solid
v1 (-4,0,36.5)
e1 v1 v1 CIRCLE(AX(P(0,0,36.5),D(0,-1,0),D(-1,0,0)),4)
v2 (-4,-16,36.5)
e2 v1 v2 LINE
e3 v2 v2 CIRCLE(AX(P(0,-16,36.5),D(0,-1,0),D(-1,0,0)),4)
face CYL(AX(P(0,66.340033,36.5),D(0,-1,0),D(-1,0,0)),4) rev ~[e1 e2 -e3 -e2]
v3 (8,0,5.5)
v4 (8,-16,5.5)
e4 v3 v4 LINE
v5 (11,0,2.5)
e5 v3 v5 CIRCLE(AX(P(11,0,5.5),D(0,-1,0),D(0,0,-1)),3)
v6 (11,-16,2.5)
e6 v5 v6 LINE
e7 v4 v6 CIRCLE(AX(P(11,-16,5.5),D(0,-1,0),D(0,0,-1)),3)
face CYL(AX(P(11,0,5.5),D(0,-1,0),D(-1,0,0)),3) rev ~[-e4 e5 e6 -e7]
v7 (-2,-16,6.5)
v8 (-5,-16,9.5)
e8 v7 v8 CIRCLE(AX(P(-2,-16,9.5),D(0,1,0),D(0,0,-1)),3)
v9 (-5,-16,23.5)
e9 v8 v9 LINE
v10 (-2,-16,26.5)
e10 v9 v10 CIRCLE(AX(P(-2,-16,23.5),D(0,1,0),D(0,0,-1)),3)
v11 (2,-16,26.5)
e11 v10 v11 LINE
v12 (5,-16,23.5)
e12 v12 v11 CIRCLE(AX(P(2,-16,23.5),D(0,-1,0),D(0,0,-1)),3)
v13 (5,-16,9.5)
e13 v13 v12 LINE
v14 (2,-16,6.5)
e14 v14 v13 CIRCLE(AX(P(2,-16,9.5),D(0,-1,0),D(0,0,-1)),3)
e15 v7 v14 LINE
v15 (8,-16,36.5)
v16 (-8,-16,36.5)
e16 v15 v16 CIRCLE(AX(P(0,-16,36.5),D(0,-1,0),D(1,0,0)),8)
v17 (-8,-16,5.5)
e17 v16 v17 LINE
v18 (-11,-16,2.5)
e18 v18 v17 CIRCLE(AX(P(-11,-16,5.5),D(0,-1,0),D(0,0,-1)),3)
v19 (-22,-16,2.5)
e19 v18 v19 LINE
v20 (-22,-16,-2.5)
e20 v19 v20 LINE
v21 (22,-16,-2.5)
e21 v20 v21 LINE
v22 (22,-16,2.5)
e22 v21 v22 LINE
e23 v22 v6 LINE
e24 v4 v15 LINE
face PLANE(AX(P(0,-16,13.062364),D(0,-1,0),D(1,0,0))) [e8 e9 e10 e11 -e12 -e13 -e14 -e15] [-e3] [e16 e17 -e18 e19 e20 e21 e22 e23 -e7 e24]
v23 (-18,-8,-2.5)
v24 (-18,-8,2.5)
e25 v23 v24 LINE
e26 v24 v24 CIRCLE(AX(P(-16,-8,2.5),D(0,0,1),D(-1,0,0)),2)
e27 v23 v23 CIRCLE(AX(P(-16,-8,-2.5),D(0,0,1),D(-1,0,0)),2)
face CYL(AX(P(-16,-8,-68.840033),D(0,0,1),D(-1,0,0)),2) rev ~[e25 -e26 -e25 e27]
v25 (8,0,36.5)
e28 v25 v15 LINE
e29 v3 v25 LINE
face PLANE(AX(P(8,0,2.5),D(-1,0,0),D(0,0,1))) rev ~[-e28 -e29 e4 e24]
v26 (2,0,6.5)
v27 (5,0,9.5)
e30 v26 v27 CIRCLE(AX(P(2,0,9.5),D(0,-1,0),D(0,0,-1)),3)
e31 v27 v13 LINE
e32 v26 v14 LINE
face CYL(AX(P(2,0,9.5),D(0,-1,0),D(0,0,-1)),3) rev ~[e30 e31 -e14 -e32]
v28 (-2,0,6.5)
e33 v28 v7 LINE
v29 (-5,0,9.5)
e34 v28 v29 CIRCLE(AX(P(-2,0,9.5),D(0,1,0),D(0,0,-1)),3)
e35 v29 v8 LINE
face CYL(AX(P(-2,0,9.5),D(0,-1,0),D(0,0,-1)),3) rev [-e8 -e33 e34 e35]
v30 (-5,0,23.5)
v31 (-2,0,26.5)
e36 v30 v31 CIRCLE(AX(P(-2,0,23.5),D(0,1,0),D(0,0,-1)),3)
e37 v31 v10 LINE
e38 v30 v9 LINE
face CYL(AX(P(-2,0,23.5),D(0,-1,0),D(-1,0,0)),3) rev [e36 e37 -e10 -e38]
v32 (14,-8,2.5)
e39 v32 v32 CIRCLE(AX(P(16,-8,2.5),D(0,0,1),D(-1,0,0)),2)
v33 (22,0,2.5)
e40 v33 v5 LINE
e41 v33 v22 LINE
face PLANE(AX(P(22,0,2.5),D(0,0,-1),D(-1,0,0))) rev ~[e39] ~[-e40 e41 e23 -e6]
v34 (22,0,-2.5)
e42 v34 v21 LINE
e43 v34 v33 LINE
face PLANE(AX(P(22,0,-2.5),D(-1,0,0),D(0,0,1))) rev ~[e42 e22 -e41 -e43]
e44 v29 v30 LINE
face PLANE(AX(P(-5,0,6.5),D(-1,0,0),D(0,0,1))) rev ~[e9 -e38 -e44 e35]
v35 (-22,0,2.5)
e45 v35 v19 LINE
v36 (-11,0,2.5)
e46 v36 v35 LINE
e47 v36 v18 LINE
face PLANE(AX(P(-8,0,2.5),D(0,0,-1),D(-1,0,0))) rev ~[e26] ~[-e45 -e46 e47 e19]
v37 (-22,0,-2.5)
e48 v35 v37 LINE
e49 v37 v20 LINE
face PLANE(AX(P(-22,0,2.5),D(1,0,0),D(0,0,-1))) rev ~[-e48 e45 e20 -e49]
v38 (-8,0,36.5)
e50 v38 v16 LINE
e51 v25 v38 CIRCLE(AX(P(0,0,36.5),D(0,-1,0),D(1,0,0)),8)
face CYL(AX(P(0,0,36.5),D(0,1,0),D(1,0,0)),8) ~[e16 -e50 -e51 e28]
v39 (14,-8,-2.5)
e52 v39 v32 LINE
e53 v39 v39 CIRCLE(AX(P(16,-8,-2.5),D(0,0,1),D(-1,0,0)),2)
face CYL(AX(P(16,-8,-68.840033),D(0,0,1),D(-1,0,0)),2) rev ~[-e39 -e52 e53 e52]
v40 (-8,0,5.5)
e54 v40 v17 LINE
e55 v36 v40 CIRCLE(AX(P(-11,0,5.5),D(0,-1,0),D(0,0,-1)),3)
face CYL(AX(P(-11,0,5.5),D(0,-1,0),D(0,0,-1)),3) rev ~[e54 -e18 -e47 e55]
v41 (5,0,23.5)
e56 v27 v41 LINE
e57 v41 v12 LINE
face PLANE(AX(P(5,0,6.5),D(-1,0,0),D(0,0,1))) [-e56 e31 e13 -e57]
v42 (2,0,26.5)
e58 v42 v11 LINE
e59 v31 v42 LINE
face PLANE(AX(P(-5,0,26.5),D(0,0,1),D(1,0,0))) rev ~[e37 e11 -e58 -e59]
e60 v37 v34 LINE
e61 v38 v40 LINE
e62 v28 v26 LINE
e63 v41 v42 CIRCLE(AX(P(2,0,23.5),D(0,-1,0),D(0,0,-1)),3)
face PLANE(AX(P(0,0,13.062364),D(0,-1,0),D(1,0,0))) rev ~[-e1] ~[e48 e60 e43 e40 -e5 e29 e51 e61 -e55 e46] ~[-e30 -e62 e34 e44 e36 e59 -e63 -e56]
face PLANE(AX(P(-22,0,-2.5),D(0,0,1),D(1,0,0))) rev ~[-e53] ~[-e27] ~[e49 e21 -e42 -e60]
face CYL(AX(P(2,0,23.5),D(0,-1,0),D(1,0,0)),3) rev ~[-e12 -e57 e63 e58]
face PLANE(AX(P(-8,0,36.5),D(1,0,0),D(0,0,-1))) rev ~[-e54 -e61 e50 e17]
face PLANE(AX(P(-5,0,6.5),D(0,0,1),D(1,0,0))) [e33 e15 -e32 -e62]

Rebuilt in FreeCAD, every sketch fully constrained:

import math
import FreeCAD as App
import Part
import Sketcher

V = App.Vector


def edges_at(feature, points):
    """Names of the edges that pass closest to the given points."""
    edges = feature.Shape.Edges
    near = lambda p: min(range(len(edges)), key=lambda i: edges[i].distToShape(Part.Vertex(*p))[0])
    return sorted({f"Edge{near(p) + 1}" for p in points})


def add_polygon(sketch, points):
    """Adds a closed chain of lines whose ends are joined by coincident constraints."""
    first, n = sketch.GeometryCount, len(points)
    for a, b in zip(points, points[1:] + points[:1]):
        sketch.addGeometry(Part.LineSegment(App.Vector(*a, 0), App.Vector(*b, 0)), False)
    for i in range(n):
        sketch.addConstraint(Sketcher.Constraint("Coincident", first + i, 2, first + (i + 1) % n, 1))

doc = App.newDocument("Part")
body = doc.addObject("PartDesign::Body", "Body")

sketch1 = body.newObject("Sketcher::SketchObject", "Sketch")
sketch1.AttachmentSupport = (doc.getObject("XZ_Plane"), [""])
sketch1.MapMode = "FlatFace"
sketch1.addGeometry(Part.LineSegment(V(-8, 2, 0), V(-22, 2, 0)), False)
sketch1.addGeometry(Part.LineSegment(V(-22, 2, 0), V(-22, -2, 0)), False)
sketch1.addGeometry(Part.LineSegment(V(-22, -2, 0), V(22, -2, 0)), False)
sketch1.addGeometry(Part.LineSegment(V(22, -2, 0), V(22, 2, 0)), False)
sketch1.addGeometry(Part.LineSegment(V(22, 2, 0), V(8, 2, 0)), False)
sketch1.addGeometry(Part.LineSegment(V(8, 2, 0), V(8, 36, 0)), False)
sketch1.addGeometry(Part.ArcOfCircle(Part.Circle(V(0, 36, 0), V(0, 0, 1), 8), math.radians(0), math.radians(180)), False)
sketch1.addGeometry(Part.LineSegment(V(-8, 36, 0), V(-8, 2, 0)), False)
add_polygon(sketch1, [(5, 6), (-5, 6), (-5, 26), (5, 26)])
sketch1.addConstraint([
    Sketcher.Constraint("Coincident", 0, 2, 1, 1),
    Sketcher.Constraint("Coincident", 1, 2, 2, 1),
    Sketcher.Constraint("Coincident", 2, 2, 3, 1),
    Sketcher.Constraint("Coincident", 3, 2, 4, 1),
    Sketcher.Constraint("Coincident", 4, 2, 5, 1),
    Sketcher.Constraint("Tangent", 5, 2, 6, 1),
    Sketcher.Constraint("Tangent", 6, 2, 7, 1),
    Sketcher.Constraint("Coincident", 7, 2, 0, 1),
    Sketcher.Constraint("Horizontal", 0),
    Sketcher.Constraint("Vertical", 1),
    Sketcher.Constraint("Horizontal", 2),
    Sketcher.Constraint("Vertical", 3),
    Sketcher.Constraint("Horizontal", 4),
    Sketcher.Constraint("Vertical", 5),
    Sketcher.Constraint("Vertical", 7),
    Sketcher.Constraint("Horizontal", 8),
    Sketcher.Constraint("Vertical", 9),
    Sketcher.Constraint("Horizontal", 10),
    Sketcher.Constraint("Vertical", 11),
    Sketcher.Constraint("Symmetric", 0, 2, 2, 2, -1, 1),
    Sketcher.Constraint("Symmetric", 4, 2, 7, 2, -2),
    Sketcher.Constraint("Radius", 6, 8.0),
    Sketcher.Constraint("DistanceX", 0, 2, 0, 1, 14.0),
    Sketcher.Constraint("DistanceX", 8, 2, 8, 1, 10.0),
    Sketcher.Constraint("DistanceY", 1, 2, 1, 1, 5.0),
    Sketcher.Constraint("DistanceY", 5, 1, 5, 2, 34.0),
    Sketcher.Constraint("DistanceY", 9, 1, 9, 2, 20.0),
    Sketcher.Constraint("DistanceX", 8, 2, -1, 1, 5.0),
    Sketcher.Constraint("DistanceY", 7, 2, 8, 2, 4.0),
])
pad1 = body.newObject("PartDesign::Pad", "Pad")
pad1.Profile = sketch1
pad1.Length = 16

sketch2 = body.newObject("Sketcher::SketchObject", "Sketch001")
sketch2.AttachmentSupport = (doc.getObject("XZ_Plane"), [""])
sketch2.MapMode = "FlatFace"
sketch2.addGeometry(Part.Circle(V(0, 36.5, 0), V(0, 0, 1), 4), False)
sketch2.addConstraint([
    Sketcher.Constraint("PointOnObject", 0, 3, -2),
    Sketcher.Constraint("Diameter", 0, 8.0),
    Sketcher.Constraint("DistanceY", -1, 1, 0, 3, 36.5),
])
doc.recompute()
hole = body.newObject("PartDesign::Hole", "Hole")
hole.Profile = sketch2
hole.ThreadType = "None"
hole.Diameter = 8
hole.DepthType = "ThroughAll"
hole.Reversed = True

sketch3 = body.newObject("Sketcher::SketchObject", "Sketch002")
sketch3.AttachmentSupport = (doc.getObject("XY_Plane"), [""])
sketch3.MapMode = "FlatFace"
sketch3.AttachmentOffset = App.Placement(V(0, 0, -2.5), App.Rotation())
sketch3.addGeometry([
    Part.Circle(V(-16, -8, 0), V(0, 0, 1), 2),
    Part.Circle(V(16, -8, 0), V(0, 0, 1), 2),
], False)
sketch3.addConstraint([
    Sketcher.Constraint("Equal", 0, 1),
    Sketcher.Constraint("Symmetric", 0, 3, 1, 3, -2),
    Sketcher.Constraint("Diameter", 0, 4.0),
    Sketcher.Constraint("DistanceX", 0, 3, -1, 1, 16.0),
    Sketcher.Constraint("DistanceY", 0, 3, -1, 1, 8.0),
])
doc.recompute()
hole2 = body.newObject("PartDesign::Hole", "Hole001")
hole2.Profile = sketch3
hole2.ThreadType = "None"
hole2.Diameter = 4
hole2.DepthType = "ThroughAll"
hole2.Reversed = True
doc.recompute()

fillet = body.newObject("PartDesign::Fillet", "Fillet")
fillet.Base = (hole2, edges_at(hole2, [
    (-8, -8, 2.5),
    (8, -8, 2.5),
    (5, -8, 6.5),
    (-5, -8, 6.5),
    (-5, -8, 26.5),
    (5, -8, 26.5),
]))
fillet.Radius = 3

doc.recompute()
